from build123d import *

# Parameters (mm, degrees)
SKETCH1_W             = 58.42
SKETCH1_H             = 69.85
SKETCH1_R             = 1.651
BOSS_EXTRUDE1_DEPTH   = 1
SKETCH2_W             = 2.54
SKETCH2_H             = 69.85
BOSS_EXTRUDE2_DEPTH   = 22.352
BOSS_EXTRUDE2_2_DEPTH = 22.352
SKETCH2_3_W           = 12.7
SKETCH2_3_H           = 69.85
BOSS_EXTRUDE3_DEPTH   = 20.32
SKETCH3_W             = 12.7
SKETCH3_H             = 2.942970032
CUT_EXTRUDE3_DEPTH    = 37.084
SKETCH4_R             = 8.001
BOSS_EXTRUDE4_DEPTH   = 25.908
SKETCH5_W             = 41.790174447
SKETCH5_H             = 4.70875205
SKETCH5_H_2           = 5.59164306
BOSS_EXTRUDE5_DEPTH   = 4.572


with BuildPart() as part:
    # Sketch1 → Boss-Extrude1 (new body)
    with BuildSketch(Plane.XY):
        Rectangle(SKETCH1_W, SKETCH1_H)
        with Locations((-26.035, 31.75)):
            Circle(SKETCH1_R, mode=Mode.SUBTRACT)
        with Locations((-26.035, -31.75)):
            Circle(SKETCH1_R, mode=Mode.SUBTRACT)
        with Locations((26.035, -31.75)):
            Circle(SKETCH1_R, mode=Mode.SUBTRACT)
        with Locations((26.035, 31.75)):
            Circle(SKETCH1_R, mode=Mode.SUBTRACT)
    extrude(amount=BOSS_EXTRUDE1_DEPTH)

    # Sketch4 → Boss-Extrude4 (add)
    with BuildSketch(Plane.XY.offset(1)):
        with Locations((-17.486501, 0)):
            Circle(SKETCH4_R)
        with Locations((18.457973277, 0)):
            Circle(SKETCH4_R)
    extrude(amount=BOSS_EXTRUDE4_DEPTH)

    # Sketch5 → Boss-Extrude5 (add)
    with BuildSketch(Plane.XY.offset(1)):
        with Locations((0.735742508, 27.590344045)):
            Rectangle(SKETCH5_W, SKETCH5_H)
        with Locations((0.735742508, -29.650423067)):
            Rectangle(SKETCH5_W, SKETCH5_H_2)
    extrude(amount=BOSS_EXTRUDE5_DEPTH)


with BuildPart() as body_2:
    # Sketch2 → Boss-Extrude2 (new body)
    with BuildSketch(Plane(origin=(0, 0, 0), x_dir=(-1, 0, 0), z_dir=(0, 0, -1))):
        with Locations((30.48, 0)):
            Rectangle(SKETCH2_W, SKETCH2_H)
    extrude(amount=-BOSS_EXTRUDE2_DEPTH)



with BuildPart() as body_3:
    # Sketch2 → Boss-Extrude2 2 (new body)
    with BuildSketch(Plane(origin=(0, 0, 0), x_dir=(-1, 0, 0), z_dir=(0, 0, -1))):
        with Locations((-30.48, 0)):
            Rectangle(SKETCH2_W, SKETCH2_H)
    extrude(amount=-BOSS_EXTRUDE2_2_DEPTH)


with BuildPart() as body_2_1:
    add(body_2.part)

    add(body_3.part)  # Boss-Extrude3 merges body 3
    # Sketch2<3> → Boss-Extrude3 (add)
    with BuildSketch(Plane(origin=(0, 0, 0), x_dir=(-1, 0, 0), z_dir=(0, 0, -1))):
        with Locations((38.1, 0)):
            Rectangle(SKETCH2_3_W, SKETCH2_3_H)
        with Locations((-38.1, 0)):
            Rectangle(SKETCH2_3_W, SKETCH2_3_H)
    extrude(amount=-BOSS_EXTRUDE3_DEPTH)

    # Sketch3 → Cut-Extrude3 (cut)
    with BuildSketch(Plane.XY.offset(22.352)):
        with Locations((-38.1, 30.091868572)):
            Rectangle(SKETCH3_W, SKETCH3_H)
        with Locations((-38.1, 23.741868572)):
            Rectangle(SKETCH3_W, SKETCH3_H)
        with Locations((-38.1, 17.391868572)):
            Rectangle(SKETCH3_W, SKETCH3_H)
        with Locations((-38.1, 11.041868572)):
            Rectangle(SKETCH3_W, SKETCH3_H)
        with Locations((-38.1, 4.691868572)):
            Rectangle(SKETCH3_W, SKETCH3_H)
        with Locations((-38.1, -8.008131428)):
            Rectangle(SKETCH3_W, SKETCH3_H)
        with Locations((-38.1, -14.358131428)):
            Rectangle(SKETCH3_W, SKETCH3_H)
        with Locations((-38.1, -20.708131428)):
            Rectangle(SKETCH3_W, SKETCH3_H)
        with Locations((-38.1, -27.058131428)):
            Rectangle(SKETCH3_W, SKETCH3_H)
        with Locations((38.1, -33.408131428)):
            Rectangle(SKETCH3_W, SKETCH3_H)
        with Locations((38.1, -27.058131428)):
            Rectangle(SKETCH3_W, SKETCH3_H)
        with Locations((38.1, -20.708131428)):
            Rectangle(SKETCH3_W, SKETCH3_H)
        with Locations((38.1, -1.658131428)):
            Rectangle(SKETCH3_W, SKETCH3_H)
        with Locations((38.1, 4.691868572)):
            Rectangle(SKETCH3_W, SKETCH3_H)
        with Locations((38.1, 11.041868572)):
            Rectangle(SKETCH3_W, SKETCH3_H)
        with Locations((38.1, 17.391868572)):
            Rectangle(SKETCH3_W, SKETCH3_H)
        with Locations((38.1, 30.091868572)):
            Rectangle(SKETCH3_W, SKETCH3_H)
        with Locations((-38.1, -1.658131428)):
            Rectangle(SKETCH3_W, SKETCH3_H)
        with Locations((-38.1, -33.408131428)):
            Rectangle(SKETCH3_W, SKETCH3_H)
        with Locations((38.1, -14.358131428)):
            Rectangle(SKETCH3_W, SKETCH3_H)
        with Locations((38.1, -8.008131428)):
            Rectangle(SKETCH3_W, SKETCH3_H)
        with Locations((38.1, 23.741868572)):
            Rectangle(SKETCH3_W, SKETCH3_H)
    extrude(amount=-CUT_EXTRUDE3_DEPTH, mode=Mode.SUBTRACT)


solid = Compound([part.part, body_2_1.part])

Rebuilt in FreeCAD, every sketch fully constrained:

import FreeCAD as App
import Part
import Sketcher
Q = App.Units.Quantity


def add_polygon(sketch, points):
    """Adds a closed chain of lines whose ends are joined by coincident constraints."""
    first, n = sketch.GeometryCount, len(points)
    for a, b in zip(points, points[1:] + points[:1]):
        sketch.addGeometry(Part.LineSegment(App.Vector(*a, 0), App.Vector(*b, 0)), False)
    for i in range(n):
        sketch.addConstraint(Sketcher.Constraint("Coincident", first + i, 2, first + (i + 1) % n, 1))

doc = App.newDocument("Part")
body = doc.addObject("PartDesign::Body", "Body")

sketch1 = body.newObject("Sketcher::SketchObject", "Sketch")
sketch1.AttachmentSupport = (doc.getObject("XY_Plane"), [""])
sketch1.MapMode = "FlatFace"
add_polygon(sketch1, [(-29.21, 34.925), (-29.21, -34.925), (29.21, -34.925), (29.21, 34.925)])
sketch1.addGeometry(Part.Circle(App.Vector(-26.035, -31.75, 0), App.Vector(0, 0, 1), 1.651), False)
sketch1.addGeometry(Part.Circle(App.Vector(26.035, -31.75, 0), App.Vector(0, 0, 1), 1.651), False)
sketch1.addGeometry(Part.Circle(App.Vector(-26.035, 31.75, 0), App.Vector(0, 0, 1), 1.651), False)
sketch1.addGeometry(Part.Circle(App.Vector(26.035, 31.75, 0), App.Vector(0, 0, 1), 1.651), False)
sketch1.addConstraint([
    Sketcher.Constraint("Vertical", 0),
    Sketcher.Constraint("Horizontal", 1),
    Sketcher.Constraint("Vertical", 2),
    Sketcher.Constraint("Horizontal", 3),
    Sketcher.Constraint("Equal", 4, 5),
    Sketcher.Constraint("Equal", 5, 6),
    Sketcher.Constraint("Equal", 6, 7),
    Sketcher.Constraint("Symmetric", 5, 3, 6, 3, -1, 1),
    Sketcher.Constraint("Symmetric", 4, 3, 7, 3, -1, 1),
    Sketcher.Constraint("Symmetric", 0, 2, 2, 2, -1, 1),
    Sketcher.Constraint("Symmetric", 4, 3, 5, 3, -2),
    Sketcher.Constraint("Diameter", 4, Q("0.13 in")),
    Sketcher.Constraint("DistanceX", 1, 1, 1, 2, Q("2.3 in")),
    Sketcher.Constraint("DistanceY", 0, 2, 0, 1, Q("2.75 in")),
    Sketcher.Constraint("DistanceY", 4, 3, 6, 3, Q("2.5 in")),
    Sketcher.Constraint("DistanceX", 4, 3, 5, 3, Q("2.05 in")),
])
pad1 = body.newObject("PartDesign::Pad", "Pad")
pad1.Profile = sketch1
pad1.Length = 1

sketch2 = body.newObject("Sketcher::SketchObject", "Sketch001")
sketch2.AttachmentSupport = (doc.getObject("XY_Plane"), [""])
sketch2.MapMode = "FlatFace"
sketch2.AttachmentOffset = App.Placement(App.Vector(0, 0, 1), App.Rotation())
sketch2.addGeometry([
    Part.Circle(App.Vector(-17.486501, 0, 0), App.Vector(0, 0, 1), 8.001),
    Part.Circle(App.Vector(18.457973, 0, 0), App.Vector(0, 0, 1), 8.001),
], False)
sketch2.addConstraint([
    Sketcher.Constraint("Equal", 0, 1),
    Sketcher.Constraint("PointOnObject", 0, 3, -1),
    Sketcher.Constraint("PointOnObject", 1, 3, -1),
    Sketcher.Constraint("Diameter", 0, Q("0.63 in")),
    Sketcher.Constraint("DistanceX", 0, 3, -1, 1, 17.486501),
    Sketcher.Constraint("DistanceX", -1, 1, 1, 3, 18.457973),
])
pad2 = body.newObject("PartDesign::Pad", "Pad001")
pad2.Profile = sketch2
pad2.Length = Q("1.02 in")

sketch3 = body.newObject("Sketcher::SketchObject", "Sketch002")
sketch3.AttachmentSupport = (doc.getObject("XY_Plane"), [""])
sketch3.MapMode = "FlatFace"
sketch3.AttachmentOffset = App.Placement(App.Vector(0, 0, 1), App.Rotation())
add_polygon(sketch3, [(-20.159345, 29.94472), (-20.159345, 25.235968), (21.63083, 25.235968), (21.63083, 29.94472)])
add_polygon(sketch3, [(-20.159345, -26.854602), (-20.159345, -32.446245), (21.63083, -32.446245), (21.63083, -26.854602)])
sketch3.addConstraint([
    Sketcher.Constraint("Vertical", 0),
    Sketcher.Constraint("Horizontal", 1),
    Sketcher.Constraint("Vertical", 2),
    Sketcher.Constraint("Horizontal", 3),
    Sketcher.Constraint("Vertical", 4),
    Sketcher.Constraint("Horizontal", 5),
    Sketcher.Constraint("Vertical", 6),
    Sketcher.Constraint("Horizontal", 7),
    Sketcher.Constraint("Vertical", 3, 2, 4, 2),
    Sketcher.Constraint("Vertical", 2, 2, 5, 2),
    Sketcher.Constraint("DistanceY", 6, 2, -1, 1, 26.854602),
    Sketcher.Constraint("DistanceX", 1, 1, 1, 2, 41.790174),
    Sketcher.Constraint("DistanceY", 0, 2, 0, 1, 4.708752),
    Sketcher.Constraint("DistanceY", 4, 2, 4, 1, 5.591643),
    Sketcher.Constraint("DistanceY", -1, 1, 0, 2, 25.235968),
    Sketcher.Constraint("DistanceX", -1, 1, 1, 2, 21.63083),
])
pad3 = body.newObject("PartDesign::Pad", "Pad002")
pad3.Profile = sketch3
pad3.Length = Q("0.18 in")
body2 = doc.addObject("PartDesign::Body", "Body001")

sketch4 = body2.newObject("Sketcher::SketchObject", "Sketch003")
sketch4.AttachmentSupport = (doc.getObject("XY_Plane001"), [""])
sketch4.MapMode = "FlatFace"
add_polygon(sketch4, [(-29.21, 34.925), (-29.21, -34.925), (-31.75, -34.925), (-31.75, 34.925)])
sketch4.addConstraint([
    Sketcher.Constraint("Vertical", 0),
    Sketcher.Constraint("Horizontal", 1),
    Sketcher.Constraint("Vertical", 2),
    Sketcher.Constraint("Horizontal", 3),
    Sketcher.Constraint("DistanceX", 1, 2, 1, 1, Q("0.1 in")),
    Sketcher.Constraint("DistanceY", 0, 2, 0, 1, Q("2.75 in")),
    Sketcher.Constraint("DistanceX", 0, 2, -1, 1, Q("1.15 in")),
    Sketcher.Constraint("DistanceY", 0, 2, -1, 1, Q("1.375 in")),
])
pad4 = body2.newObject("PartDesign::Pad", "Pad003")
pad4.Profile = sketch4
pad4.Length = Q("0.88 in")
body3 = doc.addObject("PartDesign::Body", "Body002")

sketch5 = body3.newObject("Sketcher::SketchObject", "Sketch004")
sketch5.AttachmentSupport = (doc.getObject("XY_Plane002"), [""])
sketch5.MapMode = "FlatFace"
add_polygon(sketch5, [(31.75, 34.925), (31.75, -34.925), (29.21, -34.925), (29.21, 34.925)])
sketch5.addConstraint([
    Sketcher.Constraint("Vertical", 0),
    Sketcher.Constraint("Horizontal", 1),
    Sketcher.Constraint("Vertical", 2),
    Sketcher.Constraint("Horizontal", 3),
    Sketcher.Constraint("DistanceX", 1, 2, 1, 1, Q("0.1 in")),
    Sketcher.Constraint("DistanceY", 0, 2, 0, 1, Q("2.75 in")),
    Sketcher.Constraint("DistanceX", -1, 1, 0, 2, Q("1.25 in")),
    Sketcher.Constraint("DistanceY", 0, 2, -1, 1, Q("1.375 in")),
])
pad5 = body3.newObject("PartDesign::Pad", "Pad004")
pad5.Profile = sketch5
pad5.Length = Q("0.88 in")
body2.AllowCompound = True
doc.recompute()

boolean = body2.newObject("PartDesign::Boolean", "Boolean")
boolean.Type = "Fuse"
boolean.addObjects([body3])

sketch6 = body2.newObject("Sketcher::SketchObject", "Sketch005")
sketch6.AttachmentSupport = (doc.getObject("XY_Plane001"), [""])
sketch6.MapMode = "FlatFace"
add_polygon(sketch6, [(-31.75, 34.925), (-31.75, -34.925), (-44.45, -34.925), (-44.45, 34.925)])
add_polygon(sketch6, [(44.45, 34.925), (44.45, -34.925), (31.75, -34.925), (31.75, 34.925)])
sketch6.addConstraint([
    Sketcher.Constraint("Vertical", 0),
    Sketcher.Constraint("Horizontal", 1),
    Sketcher.Constraint("Vertical", 2),
    Sketcher.Constraint("Horizontal", 3),
    Sketcher.Constraint("Vertical", 4),
    Sketcher.Constraint("Horizontal", 5),
    Sketcher.Constraint("Vertical", 6),
    Sketcher.Constraint("Horizontal", 7),
    Sketcher.Constraint("Symmetric", 2, 2, 4, 2, -1, 1),
    Sketcher.Constraint("Symmetric", 0, 2, 6, 2, -1, 1),
    Sketcher.Constraint("Horizontal", 1, 2, 4, 2),
    Sketcher.Constraint("DistanceX", 1, 2, 1, 1, Q("0.5 in")),
    Sketcher.Constraint("DistanceX", 0, 2, 4, 2, Q("3 in")),
    Sketcher.Constraint("DistanceY", 0, 2, 0, 1, Q("2.75 in")),
])
pad6 = body2.newObject("PartDesign::Pad", "Pad005")
pad6.Profile = sketch6
pad6.Length = Q("0.8 in")

sketch7 = body2.newObject("Sketcher::SketchObject", "Sketch006")
sketch7.AttachmentSupport = (doc.getObject("XY_Plane001"), [""])
sketch7.MapMode = "FlatFace"
sketch7.AttachmentOffset = App.Placement(App.Vector(0, 0, 0.88 * 25.4), App.Rotation())
add_polygon(sketch7, [(-44.45, 31.563354), (-44.45, 28.620384), (-31.75, 28.620384), (-31.75, 31.563354)])
add_polygon(sketch7, [(-44.45, 25.213354), (-44.45, 22.270384), (-31.75, 22.270384), (-31.75, 25.213354)])
add_polygon(sketch7, [(-44.45, 18.863354), (-44.45, 15.920384), (-31.75, 15.920384), (-31.75, 18.863354)])
add_polygon(sketch7, [(-44.45, 12.513354), (-44.45, 9.570384), (-31.75, 9.570384), (-31.75, 12.513354)])
add_polygon(sketch7, [(-44.45, 6.163354), (-44.45, 3.220384), (-31.75, 3.220384), (-31.75, 6.163354)])
add_polygon(sketch7, [(-44.45, -6.536646), (-44.45, -9.479616), (-31.75, -9.479616), (-31.75, -6.536646)])
add_polygon(sketch7, [(-44.45, -12.886646), (-44.45, -15.829616), (-31.75, -15.829616), (-31.75, -12.886646)])
add_polygon(sketch7, [(-44.45, -19.236646), (-44.45, -22.179616), (-31.75, -22.179616), (-31.75, -19.236646)])
add_polygon(sketch7, [(-44.45, -25.586646), (-44.45, -28.529616), (-31.75, -28.529616), (-31.75, -25.586646)])
add_polygon(sketch7, [(31.75, -31.936646), (31.75, -34.879616), (44.45, -34.879616), (44.45, -31.936646)])
add_polygon(sketch7, [(31.75, -25.586646), (31.75, -28.529616), (44.45, -28.529616), (44.45, -25.586646)])
add_polygon(sketch7, [(31.75, -19.236646), (31.75, -22.179616), (44.45, -22.179616), (44.45, -19.236646)])
add_polygon(sketch7, [(31.75, -0.186646), (31.75, -3.129616), (44.45, -3.129616), (44.45, -0.186646)])
add_polygon(sketch7, [(31.75, 6.163354), (31.75, 3.220384), (44.45, 3.220384), (44.45, 6.163354)])
add_polygon(sketch7, [(31.75, 12.513354), (31.75, 9.570384), (44.45, 9.570384), (44.45, 12.513354)])
add_polygon(sketch7, [(31.75, 18.863354), (31.75, 15.920384), (44.45, 15.920384), (44.45, 18.863354)])
add_polygon(sketch7, [(31.75, 31.563354), (31.75, 28.620384), (44.45, 28.620384), (44.45, 31.563354)])
add_polygon(sketch7, [(-44.45, -0.186646), (-44.45, -3.129616), (-31.75, -3.129616), (-31.75, -0.186646)])
add_polygon(sketch7, [(-44.45, -31.936646), (-44.45, -34.879616), (-31.75, -34.879616), (-31.75, -31.936646)])
add_polygon(sketch7, [(31.75, -12.886646), (31.75, -15.829616), (44.45, -15.829616), (44.45, -12.886646)])
add_polygon(sketch7, [(31.75, -6.536646), (31.75, -9.479616), (44.45, -9.479616), (44.45, -6.536646)])
add_polygon(sketch7, [(31.75, 25.213354), (31.75, 22.270384), (44.45, 22.270384), (44.45, 25.213354)])
sketch7.addConstraint([
    Sketcher.Constraint("Vertical", 0),
    Sketcher.Constraint("Horizontal", 1),
    Sketcher.Constraint("Vertical", 2),
    Sketcher.Constraint("Horizontal", 3),
    Sketcher.Constraint("Vertical", 4),
    Sketcher.Constraint("Horizontal", 5),
    Sketcher.Constraint("Vertical", 6),
    Sketcher.Constraint("Horizontal", 7),
    Sketcher.Constraint("Vertical", 8),
    Sketcher.Constraint("Horizontal", 9),
    Sketcher.Constraint("Vertical", 10),
    Sketcher.Constraint("Horizontal", 11),
    Sketcher.Constraint("Vertical", 12),
    Sketcher.Constraint("Horizontal", 13),
    Sketcher.Constraint("Vertical", 14),
    Sketcher.Constraint("Horizontal", 15),
    Sketcher.Constraint("Vertical", 16),
    Sketcher.Constraint("Horizontal", 17),
    Sketcher.Constraint("Vertical", 18),
    Sketcher.Constraint("Horizontal", 19),
    Sketcher.Constraint("Vertical", 20),
    Sketcher.Constraint("Horizontal", 21),
    Sketcher.Constraint("Vertical", 22),
    Sketcher.Constraint("Horizontal", 23),
    Sketcher.Constraint("Vertical", 24),
    Sketcher.Constraint("Horizontal", 25),
    Sketcher.Constraint("Vertical", 26),
    Sketcher.Constraint("Horizontal", 27),
    Sketcher.Constraint("Vertical", 28),
    Sketcher.Constraint("Horizontal", 29),
    Sketcher.Constraint("Vertical", 30),
    Sketcher.Constraint("Horizontal", 31),
    Sketcher.Constraint("Vertical", 32),
    Sketcher.Constraint("Horizontal", 33),
    Sketcher.Constraint("Vertical", 34),
    Sketcher.Constraint("Horizontal", 35),
    Sketcher.Constraint("Vertical", 36),
    Sketcher.Constraint("Horizontal", 37),
    Sketcher.Constraint("Vertical", 38),
    Sketcher.Constraint("Horizontal", 39),
    Sketcher.Constraint("Vertical", 40),
    Sketcher.Constraint("Horizontal", 41),
    Sketcher.Constraint("Vertical", 42),
    Sketcher.Constraint("Horizontal", 43),
    Sketcher.Constraint("Vertical", 44),
    Sketcher.Constraint("Horizontal", 45),
    Sketcher.Constraint("Vertical", 46),
    Sketcher.Constraint("Horizontal", 47),
    Sketcher.Constraint("Vertical", 48),
    Sketcher.Constraint("Horizontal", 49),
    Sketcher.Constraint("Vertical", 50),
    Sketcher.Constraint("Horizontal", 51),
    Sketcher.Constraint("Vertical", 52),
    Sketcher.Constraint("Horizontal", 53),
    Sketcher.Constraint("Vertical", 54),
    Sketcher.Constraint("Horizontal", 55),
    Sketcher.Constraint("Vertical", 56),
    Sketcher.Constraint("Horizontal", 57),
    Sketcher.Constraint("Vertical", 58),
    Sketcher.Constraint("Horizontal", 59),
    Sketcher.Constraint("Vertical", 60),
    Sketcher.Constraint("Horizontal", 61),
    Sketcher.Constraint("Vertical", 62),
    Sketcher.Constraint("Horizontal", 63),
    Sketcher.Constraint("Vertical", 64),
    Sketcher.Constraint("Horizontal", 65),
    Sketcher.Constraint("Vertical", 66),
    Sketcher.Constraint("Horizontal", 67),
    Sketcher.Constraint("Vertical", 68),
    Sketcher.Constraint("Horizontal", 69),
    Sketcher.Constraint("Vertical", 70),
    Sketcher.Constraint("Horizontal", 71),
    Sketcher.Constraint("Vertical", 72),
    Sketcher.Constraint("Horizontal", 73),
    Sketcher.Constraint("Vertical", 74),
    Sketcher.Constraint("Horizontal", 75),
    Sketcher.Constraint("Vertical", 76),
    Sketcher.Constraint("Horizontal", 77),
    Sketcher.Constraint("Vertical", 78),
    Sketcher.Constraint("Horizontal", 79),
    Sketcher.Constraint("Vertical", 80),
    Sketcher.Constraint("Horizontal", 81),
    Sketcher.Constraint("Vertical", 82),
    Sketcher.Constraint("Horizontal", 83),
    Sketcher.Constraint("Vertical", 84),
    Sketcher.Constraint("Horizontal", 85),
    Sketcher.Constraint("Vertical", 86),
    Sketcher.Constraint("Horizontal", 87),
    Sketcher.Constraint("Symmetric", 33, 2, 40, 2, -2),
    Sketcher.Constraint("Symmetric", 35, 2, 42, 2, -2),
    Sketcher.Constraint("Symmetric", 29, 2, 44, 2, -2),
    Sketcher.Constraint("Symmetric", 31, 2, 46, 2, -2),
    Sketcher.Constraint("Symmetric", 17, 2, 52, 2, -2),
    Sketcher.Constraint("Symmetric", 19, 2, 54, 2, -2),
    Sketcher.Constraint("Symmetric", 13, 2, 56, 2, -2),
    Sketcher.Constraint("Symmetric", 15, 2, 58, 2, -2),
    Sketcher.Constraint("Symmetric", 9, 2, 60, 2, -2),
    Sketcher.Constraint("Symmetric", 11, 2, 62, 2, -2),
    Sketcher.Constraint("Symmetric", 1, 2, 64, 2, -2),
    Sketcher.Constraint("Symmetric", 3, 2, 66, 2, -2),
    Sketcher.Constraint("Symmetric", 49, 2, 68, 2, -2),
    Sketcher.Constraint("Symmetric", 51, 2, 70, 2, -2),
    Sketcher.Constraint("Symmetric", 37, 2, 72, 2, -2),
    Sketcher.Constraint("Symmetric", 39, 2, 74, 2, -2),
    Sketcher.Constraint("Symmetric", 25, 2, 76, 2, -2),
    Sketcher.Constraint("Symmetric", 27, 2, 78, 2, -2),
    Sketcher.Constraint("Symmetric", 21, 2, 80, 2, -2),
    Sketcher.Constraint("Symmetric", 23, 2, 82, 2, -2),
    Sketcher.Constraint("Symmetric", 5, 2, 84, 2, -2),
    Sketcher.Constraint("Symmetric", 7, 2, 86, 2, -2),
    Sketcher.Constraint("Vertical", 3, 2, 4, 2),
    Sketcher.Constraint("Vertical", 2, 2, 5, 2),
    Sketcher.Constraint("Vertical", 7, 2, 8, 2),
    Sketcher.Constraint("Vertical", 6, 2, 9, 2),
    Sketcher.Constraint("Vertical", 11, 2, 12, 2),
    Sketcher.Constraint("Vertical", 10, 2, 13, 2),
    Sketcher.Constraint("Vertical", 15, 2, 16, 2),
    Sketcher.Constraint("Vertical", 14, 2, 17, 2),
    Sketcher.Constraint("Vertical", 19, 2, 20, 2),
    Sketcher.Constraint("Vertical", 18, 2, 21, 2),
    Sketcher.Constraint("Vertical", 23, 2, 24, 2),
    Sketcher.Constraint("Vertical", 22, 2, 25, 2),
    Sketcher.Constraint("Vertical", 27, 2, 28, 2),
    Sketcher.Constraint("Vertical", 26, 2, 29, 2),
    Sketcher.Constraint("Vertical", 31, 2, 32, 2),
    Sketcher.Constraint("Vertical", 30, 2, 33, 2),
    Sketcher.Constraint("Vertical", 39, 2, 40, 2),
    Sketcher.Constraint("Vertical", 38, 2, 41, 2),
    Sketcher.Constraint("Vertical", 47, 2, 48, 2),
    Sketcher.Constraint("Vertical", 46, 2, 49, 2),
    Sketcher.Constraint("Equal", 2, 4),
    Sketcher.Constraint("Equal", 6, 8),
    Sketcher.Constraint("Equal", 10, 12),
    Sketcher.Constraint("Equal", 14, 16),
    Sketcher.Constraint("Equal", 18, 20),
    Sketcher.Constraint("Equal", 22, 24),
    Sketcher.Constraint("Equal", 26, 28),
    Sketcher.Constraint("Equal", 30, 32),
    Sketcher.Constraint("Equal", 34, 36),
    Sketcher.Constraint("Equal", 46, 48),
    Sketcher.Constraint("DistanceX", 1, 1, 1, 2, Q("0.5 in")),
    Sketcher.Constraint("DistanceX", 0, 2, -1, 1, Q("1.75 in")),
    Sketcher.Constraint("DistanceY", 0, 2, 0, 1, 2.94297),
    Sketcher.Constraint("DistanceY", -1, 1, 0, 2, 28.620384),
    Sketcher.Constraint("DistanceY", -1, 1, 4, 2, 22.270384),
    Sketcher.Constraint("DistanceY", -1, 1, 8, 2, 15.920384),
    Sketcher.Constraint("DistanceY", -1, 1, 12, 2, 9.570384),
    Sketcher.Constraint("DistanceY", -1, 1, 16, 2, 3.220384),
    Sketcher.Constraint("DistanceY", 20, 2, -1, 1, 9.479616),
    Sketcher.Constraint("DistanceY", 24, 2, -1, 1, 15.829616),
    Sketcher.Constraint("DistanceY", 28, 2, -1, 1, 22.179616),
    Sketcher.Constraint("DistanceY", 32, 2, -1, 1, 28.529616),
    Sketcher.Constraint("DistanceY", 36, 2, -1, 1, 34.879616),
    Sketcher.Constraint("DistanceY", 48, 2, -1, 1, 3.129616),
])
pocket1 = body2.newObject("PartDesign::Pocket", "Pocket")
pocket1.Profile = sketch7
pocket1.Length = Q("1.46 in")

doc.recompute()
